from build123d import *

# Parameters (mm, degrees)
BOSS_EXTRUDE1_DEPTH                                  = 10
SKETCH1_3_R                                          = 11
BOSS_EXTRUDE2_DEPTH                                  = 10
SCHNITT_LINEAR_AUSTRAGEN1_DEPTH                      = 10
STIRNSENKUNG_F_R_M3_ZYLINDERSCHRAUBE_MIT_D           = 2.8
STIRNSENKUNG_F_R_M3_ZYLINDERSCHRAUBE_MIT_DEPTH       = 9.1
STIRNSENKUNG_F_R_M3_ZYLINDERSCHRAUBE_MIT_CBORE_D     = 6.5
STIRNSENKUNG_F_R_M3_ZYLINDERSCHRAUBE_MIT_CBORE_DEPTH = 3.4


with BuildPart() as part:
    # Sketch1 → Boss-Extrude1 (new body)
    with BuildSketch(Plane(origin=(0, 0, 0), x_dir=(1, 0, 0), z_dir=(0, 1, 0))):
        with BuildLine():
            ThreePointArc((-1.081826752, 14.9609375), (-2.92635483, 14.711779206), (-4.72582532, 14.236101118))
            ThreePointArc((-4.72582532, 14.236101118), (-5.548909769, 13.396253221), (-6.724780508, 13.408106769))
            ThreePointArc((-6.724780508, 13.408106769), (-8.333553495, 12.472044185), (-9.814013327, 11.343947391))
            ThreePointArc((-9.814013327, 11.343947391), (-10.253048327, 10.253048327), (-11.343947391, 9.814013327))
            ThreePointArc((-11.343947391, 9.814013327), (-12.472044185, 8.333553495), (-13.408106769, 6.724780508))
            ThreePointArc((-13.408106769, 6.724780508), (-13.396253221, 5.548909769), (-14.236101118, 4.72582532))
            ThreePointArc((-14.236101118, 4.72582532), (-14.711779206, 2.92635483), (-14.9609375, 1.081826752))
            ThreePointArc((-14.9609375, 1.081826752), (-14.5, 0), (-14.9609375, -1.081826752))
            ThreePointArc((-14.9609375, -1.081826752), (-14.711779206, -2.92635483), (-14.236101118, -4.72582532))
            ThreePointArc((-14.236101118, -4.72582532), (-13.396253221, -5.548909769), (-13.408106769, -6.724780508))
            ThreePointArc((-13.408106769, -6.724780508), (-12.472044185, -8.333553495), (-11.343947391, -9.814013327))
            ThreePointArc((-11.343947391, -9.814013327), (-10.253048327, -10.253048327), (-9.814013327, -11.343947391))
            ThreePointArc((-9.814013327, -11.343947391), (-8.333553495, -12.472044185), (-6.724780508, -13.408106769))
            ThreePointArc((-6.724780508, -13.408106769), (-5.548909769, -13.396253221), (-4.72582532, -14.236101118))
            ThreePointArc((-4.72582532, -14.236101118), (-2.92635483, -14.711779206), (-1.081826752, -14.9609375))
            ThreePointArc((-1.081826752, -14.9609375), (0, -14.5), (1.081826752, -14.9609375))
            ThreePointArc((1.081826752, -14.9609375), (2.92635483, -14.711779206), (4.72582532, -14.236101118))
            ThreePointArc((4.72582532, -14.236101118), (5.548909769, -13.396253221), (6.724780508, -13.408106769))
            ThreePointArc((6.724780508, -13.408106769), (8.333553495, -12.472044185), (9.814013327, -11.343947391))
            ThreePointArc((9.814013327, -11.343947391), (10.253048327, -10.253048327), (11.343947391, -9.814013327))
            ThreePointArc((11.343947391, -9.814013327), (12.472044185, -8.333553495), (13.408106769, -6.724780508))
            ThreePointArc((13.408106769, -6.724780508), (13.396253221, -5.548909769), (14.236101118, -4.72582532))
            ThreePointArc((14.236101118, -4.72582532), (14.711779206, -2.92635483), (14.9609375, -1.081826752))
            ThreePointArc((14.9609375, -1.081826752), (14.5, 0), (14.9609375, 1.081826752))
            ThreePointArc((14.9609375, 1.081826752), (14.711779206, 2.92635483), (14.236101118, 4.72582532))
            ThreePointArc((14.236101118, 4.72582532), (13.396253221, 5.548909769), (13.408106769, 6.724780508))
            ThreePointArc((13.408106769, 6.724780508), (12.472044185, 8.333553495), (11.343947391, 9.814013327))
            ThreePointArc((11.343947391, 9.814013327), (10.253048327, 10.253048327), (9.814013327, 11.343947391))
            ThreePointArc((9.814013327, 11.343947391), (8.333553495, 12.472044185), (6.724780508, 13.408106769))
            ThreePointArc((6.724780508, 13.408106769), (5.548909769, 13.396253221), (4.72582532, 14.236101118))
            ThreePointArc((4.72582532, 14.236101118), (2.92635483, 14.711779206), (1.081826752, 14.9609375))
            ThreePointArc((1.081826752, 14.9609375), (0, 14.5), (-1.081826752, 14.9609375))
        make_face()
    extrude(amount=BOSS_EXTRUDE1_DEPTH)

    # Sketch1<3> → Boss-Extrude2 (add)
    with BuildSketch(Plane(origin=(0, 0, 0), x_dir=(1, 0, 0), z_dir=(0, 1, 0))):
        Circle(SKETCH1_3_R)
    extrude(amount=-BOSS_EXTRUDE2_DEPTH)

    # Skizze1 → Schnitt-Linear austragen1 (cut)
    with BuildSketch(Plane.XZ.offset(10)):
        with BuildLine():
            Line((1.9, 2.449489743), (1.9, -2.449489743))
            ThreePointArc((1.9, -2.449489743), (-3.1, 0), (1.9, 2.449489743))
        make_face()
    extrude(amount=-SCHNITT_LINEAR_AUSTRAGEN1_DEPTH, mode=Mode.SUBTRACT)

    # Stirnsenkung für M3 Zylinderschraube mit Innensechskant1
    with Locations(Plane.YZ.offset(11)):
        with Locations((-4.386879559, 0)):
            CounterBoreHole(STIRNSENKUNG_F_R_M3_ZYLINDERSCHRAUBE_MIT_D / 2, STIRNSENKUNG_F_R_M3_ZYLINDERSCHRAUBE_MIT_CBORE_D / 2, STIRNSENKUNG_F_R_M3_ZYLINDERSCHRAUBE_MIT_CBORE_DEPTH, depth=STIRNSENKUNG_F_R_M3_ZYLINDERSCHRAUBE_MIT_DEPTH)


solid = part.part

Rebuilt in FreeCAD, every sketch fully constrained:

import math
import FreeCAD as App
import Part
import Sketcher
from FreeCAD import Vector

doc = App.newDocument("Part")
body = doc.addObject("PartDesign::Body", "Body")

# Sketch on XZ plane
sketch1 = body.newObject("Sketcher::SketchObject", "Sketch")
sketch1.AttachmentSupport = (doc.getObject("XZ_Plane"), [""])
sketch1.MapMode = "FlatFace"
sketch1.addGeometry([
    Part.ArcOfCircle(Part.Circle(Vector(0, 0, 0), Vector(0, 0, 1), 15), math.radians(-108.36), math.radians(-94.14)),  # 0
    Part.ArcOfCircle(Part.Circle(Vector(-6.1, -14.8, 0), Vector(0, 0, 1), 1.5), math.radians(21), math.radians(114)),  # 1
    Part.ArcOfCircle(Part.Circle(Vector(0, 0, 0), Vector(0, 0, 1), 15), math.radians(-130.86), math.radians(-116.64)),  # 2
    Part.ArcOfCircle(Part.Circle(Vector(-11.3, -11.3, 0), Vector(0, 0, 1), 1.5), math.radians(-1), math.radians(91)),  # 3
    Part.ArcOfCircle(Part.Circle(Vector(0, 0, 0), Vector(0, 0, 1), 15), math.radians(-153.36), math.radians(-139.14)),  # 4
    Part.ArcOfCircle(Part.Circle(Vector(-14.8, -6.1, 0), Vector(0, 0, 1), 1.5), math.radians(-24), math.radians(69)),  # 5
    Part.ArcOfCircle(Part.Circle(Vector(0, 0, 0), Vector(0, 0, 1), 15), math.radians(-175.86), math.radians(-161.64)),  # 6
    Part.ArcOfCircle(Part.Circle(Vector(-16, 0, 0), Vector(0, 0, 1), 1.5), math.radians(-46), math.radians(46)),  # 7
    Part.ArcOfCircle(Part.Circle(Vector(0, 0, 0), Vector(0, 0, 1), 15), math.radians(161.64), math.radians(175.86)),  # 8
    Part.ArcOfCircle(Part.Circle(Vector(-14.8, 6.1, 0), Vector(0, 0, 1), 1.5), math.radians(-69), math.radians(24)),  # 9
    Part.ArcOfCircle(Part.Circle(Vector(0, 0, 0), Vector(0, 0, 1), 15), math.radians(139.14), math.radians(153.36)),  # 10
    Part.ArcOfCircle(Part.Circle(Vector(-11.3, 11.3, 0), Vector(0, 0, 1), 1.5), math.radians(-91), math.radians(1)),  # 11
    Part.ArcOfCircle(Part.Circle(Vector(0, 0, 0), Vector(0, 0, 1), 15), math.radians(116.64), math.radians(130.86)),  # 12
    Part.ArcOfCircle(Part.Circle(Vector(-6.1, 14.8, 0), Vector(0, 0, 1), 1.5), math.radians(-114), math.radians(-21)),  # 13
    Part.ArcOfCircle(Part.Circle(Vector(0, 0, 0), Vector(0, 0, 1), 15), math.radians(94.14), math.radians(108.36)),  # 14
    Part.ArcOfCircle(Part.Circle(Vector(0, 16, 0), Vector(0, 0, 1), 1.5), math.radians(-136), math.radians(-44)),  # 15
    Part.ArcOfCircle(Part.Circle(Vector(0, 0, 0), Vector(0, 0, 1), 15), math.radians(71.64), math.radians(85.86)),  # 16
    Part.ArcOfCircle(Part.Circle(Vector(6.1, 14.8, 0), Vector(0, 0, 1), 1.5), math.radians(-159), math.radians(-66)),  # 17
    Part.ArcOfCircle(Part.Circle(Vector(0, 0, 0), Vector(0, 0, 1), 15), math.radians(49.14), math.radians(63.36)),  # 18
    Part.ArcOfCircle(Part.Circle(Vector(11.3, 11.3, 0), Vector(0, 0, 1), 1.5), math.radians(179), math.radians(271)),  # 19
    Part.ArcOfCircle(Part.Circle(Vector(0, 0, 0), Vector(0, 0, 1), 15), math.radians(26.64), math.radians(40.86)),  # 20
    Part.ArcOfCircle(Part.Circle(Vector(14.8, 6.1, 0), Vector(0, 0, 1), 1.5), math.radians(156), math.radians(249)),  # 21
    Part.ArcOfCircle(Part.Circle(Vector(0, 0, 0), Vector(0, 0, 1), 15), math.radians(4.14), math.radians(18.36)),  # 22
    Part.ArcOfCircle(Part.Circle(Vector(16, 0, 0), Vector(0, 0, 1), 1.5), math.radians(134), math.radians(226)),  # 23
    Part.ArcOfCircle(Part.Circle(Vector(0, 0, 0), Vector(0, 0, 1), 15), math.radians(-18.36), math.radians(-4.14)),  # 24
    Part.ArcOfCircle(Part.Circle(Vector(14.8, -6.1, 0), Vector(0, 0, 1), 1.5), math.radians(111), math.radians(204)),  # 25
    Part.ArcOfCircle(Part.Circle(Vector(0, 0, 0), Vector(0, 0, 1), 15), math.radians(-40.86), math.radians(-26.64)),  # 26
    Part.ArcOfCircle(Part.Circle(Vector(11.3, -11.3, 0), Vector(0, 0, 1), 1.5), math.radians(89), math.radians(181)),  # 27
    Part.ArcOfCircle(Part.Circle(Vector(0, 0, 0), Vector(0, 0, 1), 15), math.radians(-63.36), math.radians(-49.14)),  # 28
    Part.ArcOfCircle(Part.Circle(Vector(6.1, -14.8, 0), Vector(0, 0, 1), 1.5), math.radians(66), math.radians(159)),  # 29
    Part.ArcOfCircle(Part.Circle(Vector(0, 0, 0), Vector(0, 0, 1), 15), math.radians(-85.86), math.radians(-71.64)),  # 30
    Part.ArcOfCircle(Part.Circle(Vector(0, -16, 0), Vector(0, 0, 1), 1.5), math.radians(44), math.radians(136)),  # 31
], False)
sketch1.addConstraint([
    Sketcher.Constraint("Coincident", 0, 1, 1, 1),
    Sketcher.Constraint("Coincident", 1, 2, 2, 2),
    Sketcher.Constraint("Coincident", 2, 1, 3, 1),
    Sketcher.Constraint("Coincident", 3, 2, 4, 2),
    Sketcher.Constraint("Coincident", 4, 1, 5, 1),
    Sketcher.Constraint("Coincident", 5, 2, 6, 2),
    Sketcher.Constraint("Coincident", 6, 1, 7, 1),
    Sketcher.Constraint("Coincident", 7, 2, 8, 2),
    Sketcher.Constraint("Coincident", 8, 1, 9, 1),
    Sketcher.Constraint("Coincident", 9, 2, 10, 2),
    Sketcher.Constraint("Coincident", 10, 1, 11, 1),
    Sketcher.Constraint("Coincident", 11, 2, 12, 2),
    Sketcher.Constraint("Coincident", 12, 1, 13, 1),
    Sketcher.Constraint("Coincident", 13, 2, 14, 2),
    Sketcher.Constraint("Coincident", 14, 1, 15, 1),
    Sketcher.Constraint("Coincident", 15, 2, 16, 2),
    Sketcher.Constraint("Coincident", 16, 1, 17, 1),
    Sketcher.Constraint("Coincident", 17, 2, 18, 2),
    Sketcher.Constraint("Coincident", 18, 1, 19, 1),
    Sketcher.Constraint("Coincident", 19, 2, 20, 2),
    Sketcher.Constraint("Coincident", 20, 1, 21, 1),
    Sketcher.Constraint("Coincident", 21, 2, 22, 2),
    Sketcher.Constraint("Coincident", 22, 1, 23, 1),
    Sketcher.Constraint("Coincident", 23, 2, 24, 2),
    Sketcher.Constraint("Coincident", 24, 1, 25, 1),
    Sketcher.Constraint("Coincident", 25, 2, 26, 2),
    Sketcher.Constraint("Coincident", 26, 1, 27, 1),
    Sketcher.Constraint("Coincident", 27, 2, 28, 2),
    Sketcher.Constraint("Coincident", 28, 1, 29, 1),
    Sketcher.Constraint("Coincident", 29, 2, 30, 2),
    Sketcher.Constraint("Coincident", 30, 1, 31, 1),
    Sketcher.Constraint("Coincident", 31, 2, 0, 2),
    Sketcher.Constraint("Coincident", 0, 3, -1, 1),
    Sketcher.Constraint("Coincident", 2, 3, -1, 1),
    Sketcher.Constraint("Coincident", 4, 3, -1, 1),
    Sketcher.Constraint("Coincident", 6, 3, -1, 1),
    Sketcher.Constraint("Coincident", 8, 3, -1, 1),
    Sketcher.Constraint("Coincident", 10, 3, -1, 1),
    Sketcher.Constraint("Coincident", 12, 3, -1, 1),
    Sketcher.Constraint("Coincident", 14, 3, -1, 1),
    Sketcher.Constraint("Coincident", 16, 3, -1, 1),
    Sketcher.Constraint("Coincident", 18, 3, -1, 1),
    Sketcher.Constraint("Coincident", 20, 3, -1, 1),
    Sketcher.Constraint("Coincident", 22, 3, -1, 1),
    Sketcher.Constraint("Coincident", 24, 3, -1, 1),
    Sketcher.Constraint("Coincident", 26, 3, -1, 1),
    Sketcher.Constraint("Coincident", 28, 3, -1, 1),
    Sketcher.Constraint("Coincident", 30, 3, -1, 1),
    Sketcher.Constraint("Equal", 0, 2),
    Sketcher.Constraint("Equal", 1, 3),
    Sketcher.Constraint("Equal", 2, 4),
    Sketcher.Constraint("Equal", 3, 5),
    Sketcher.Constraint("Equal", 4, 6),
    Sketcher.Constraint("Equal", 5, 7),
    Sketcher.Constraint("Equal", 6, 8),
    Sketcher.Constraint("Equal", 7, 9),
    Sketcher.Constraint("Equal", 8, 10),
    Sketcher.Constraint("Equal", 9, 11),
    Sketcher.Constraint("Equal", 10, 12),
    Sketcher.Constraint("Equal", 11, 13),
    Sketcher.Constraint("Equal", 12, 14),
    Sketcher.Constraint("Equal", 13, 15),
    Sketcher.Constraint("Equal", 14, 16),
    Sketcher.Constraint("Equal", 15, 17),
    Sketcher.Constraint("Equal", 16, 18),
    Sketcher.Constraint("Equal", 17, 19),
    Sketcher.Constraint("Equal", 18, 20),
    Sketcher.Constraint("Equal", 19, 21),
    Sketcher.Constraint("Equal", 20, 22),
    Sketcher.Constraint("Equal", 21, 23),
    Sketcher.Constraint("Equal", 22, 24),
    Sketcher.Constraint("Equal", 23, 25),
    Sketcher.Constraint("Equal", 24, 26),
    Sketcher.Constraint("Equal", 25, 27),
    Sketcher.Constraint("Equal", 26, 28),
    Sketcher.Constraint("Equal", 27, 29),
    Sketcher.Constraint("Equal", 28, 30),
    Sketcher.Constraint("Equal", 29, 31),
    Sketcher.Constraint("Symmetric", 1, 3, 17, 3, -1, 1),
    Sketcher.Constraint("Symmetric", 3, 3, 19, 3, -1, 1),
    Sketcher.Constraint("Symmetric", 5, 3, 21, 3, -1, 1),
    Sketcher.Constraint("Symmetric", 7, 3, 23, 3, -1, 1),
    Sketcher.Constraint("Symmetric", 9, 3, 25, 3, -1, 1),
    Sketcher.Constraint("Symmetric", 11, 3, 27, 3, -1, 1),
    Sketcher.Constraint("Symmetric", 13, 3, 29, 3, -1, 1),
    Sketcher.Constraint("Symmetric", 15, 3, 31, 3, -1, 1),
    Sketcher.Constraint("Symmetric", 13, 3, 17, 3, -2),
    Sketcher.Constraint("Symmetric", 11, 3, 19, 3, -2),
    Sketcher.Constraint("Symmetric", 9, 3, 21, 3, -2),
    Sketcher.Constraint("PointOnObject", 7, 3, -1),
    Sketcher.Constraint("PointOnObject", 15, 3, -2),
    Sketcher.Constraint("Radius", 0, 15.0),
    Sketcher.Constraint("Radius", 1, 1.5),
    Sketcher.Constraint("DistanceX", 7, 3, -1, 1, 16.0),
    Sketcher.Constraint("DistanceY", -1, 1, 15, 3, 16.0),
    Sketcher.Constraint("DistanceY", 0, 1, -1, 1, 14.236101),
    Sketcher.Constraint("DistanceX", 5, 2, -1, 1, 14.236101),
    Sketcher.Constraint("DistanceX", 3, 3, -1, 1, 11.313708),
    Sketcher.Constraint("DistanceY", 3, 3, -1, 1, 11.313708),
    Sketcher.Constraint("DistanceX", 1, 2, -1, 1, 6.724781),
    Sketcher.Constraint("DistanceY", 4, 1, -1, 1, 6.724781),
])
pad1 = body.newObject("PartDesign::Pad", "Pad")
pad1.Profile = sketch1
pad1.Length = 10
pad1.Reversed = True

# Sketch on XZ plane
sketch2 = body.newObject("Sketcher::SketchObject", "Sketch001")
sketch2.AttachmentSupport = (doc.getObject("XZ_Plane"), [""])
sketch2.MapMode = "FlatFace"
sketch2.addGeometry(Part.Circle(Vector(0, 0, 0), Vector(0, 0, 1), 11), False)
sketch2.addConstraint([
    Sketcher.Constraint("Coincident", 0, 3, -1, 1),
    Sketcher.Constraint("Diameter", 0, 22.0),
])
pad2 = body.newObject("PartDesign::Pad", "Pad001")
pad2.Profile = sketch2
pad2.Length = 10

# Sketch on XZ plane
sketch3 = body.newObject("Sketcher::SketchObject", "Sketch002")
sketch3.AttachmentSupport = (doc.getObject("XZ_Plane"), [""])
sketch3.MapMode = "FlatFace"
sketch3.AttachmentOffset = App.Placement(Vector(0, 0, 10), App.Rotation())
sketch3.addGeometry([
    Part.LineSegment(Vector(1.9, -2.4, 0), Vector(1.9, 2.4, 0)),
    Part.ArcOfCircle(Part.Circle(Vector(0, 0, 0), Vector(0, 0, 1), 3.1), math.radians(52), math.radians(308)),
], False)
sketch3.addConstraint([
    Sketcher.Constraint("Coincident", 0, 1, 1, 2),
    Sketcher.Constraint("Coincident", 1, 1, 0, 2),
    Sketcher.Constraint("Vertical", 0),
    Sketcher.Constraint("Coincident", 1, 3, -1, 1),
    Sketcher.Constraint("Radius", 1, 3.1),
    Sketcher.Constraint("DistanceX", -1, 1, 0, 1, 1.9),
])
pocket1 = body.newObject("PartDesign::Pocket", "Pocket")
pocket1.Profile = sketch3
pocket1.Length = 10

# Sketch on YZ plane
sketch4 = body.newObject("Sketcher::SketchObject", "Sketch003")
sketch4.AttachmentSupport = (doc.getObject("YZ_Plane"), [""])
sketch4.MapMode = "FlatFace"
sketch4.AttachmentOffset = App.Placement(Vector(0, 0, 11), App.Rotation())
sketch4.addGeometry(Part.Circle(Vector(-4.4, 0, 0), Vector(0, 0, 1), 1.4), False)
sketch4.addConstraint([
    Sketcher.Constraint("PointOnObject", 0, 3, -1),
    Sketcher.Constraint("Diameter", 0, 2.8),
    Sketcher.Constraint("DistanceX", 0, 3, -1, 1, 4.38688),
])
doc.recompute()
hole = body.newObject("PartDesign::Hole", "Hole")
hole.Profile = sketch4
hole.ThreadType = "None"
hole.Diameter = 2.8
hole.DepthType = "Dimension"
hole.Depth = 9.1
hole.DrillPoint = "Flat"
hole.HoleCutType = "Counterbore"
hole.HoleCutDiameter = 6.5
hole.HoleCutDepth = 3.4

doc.recompute()
